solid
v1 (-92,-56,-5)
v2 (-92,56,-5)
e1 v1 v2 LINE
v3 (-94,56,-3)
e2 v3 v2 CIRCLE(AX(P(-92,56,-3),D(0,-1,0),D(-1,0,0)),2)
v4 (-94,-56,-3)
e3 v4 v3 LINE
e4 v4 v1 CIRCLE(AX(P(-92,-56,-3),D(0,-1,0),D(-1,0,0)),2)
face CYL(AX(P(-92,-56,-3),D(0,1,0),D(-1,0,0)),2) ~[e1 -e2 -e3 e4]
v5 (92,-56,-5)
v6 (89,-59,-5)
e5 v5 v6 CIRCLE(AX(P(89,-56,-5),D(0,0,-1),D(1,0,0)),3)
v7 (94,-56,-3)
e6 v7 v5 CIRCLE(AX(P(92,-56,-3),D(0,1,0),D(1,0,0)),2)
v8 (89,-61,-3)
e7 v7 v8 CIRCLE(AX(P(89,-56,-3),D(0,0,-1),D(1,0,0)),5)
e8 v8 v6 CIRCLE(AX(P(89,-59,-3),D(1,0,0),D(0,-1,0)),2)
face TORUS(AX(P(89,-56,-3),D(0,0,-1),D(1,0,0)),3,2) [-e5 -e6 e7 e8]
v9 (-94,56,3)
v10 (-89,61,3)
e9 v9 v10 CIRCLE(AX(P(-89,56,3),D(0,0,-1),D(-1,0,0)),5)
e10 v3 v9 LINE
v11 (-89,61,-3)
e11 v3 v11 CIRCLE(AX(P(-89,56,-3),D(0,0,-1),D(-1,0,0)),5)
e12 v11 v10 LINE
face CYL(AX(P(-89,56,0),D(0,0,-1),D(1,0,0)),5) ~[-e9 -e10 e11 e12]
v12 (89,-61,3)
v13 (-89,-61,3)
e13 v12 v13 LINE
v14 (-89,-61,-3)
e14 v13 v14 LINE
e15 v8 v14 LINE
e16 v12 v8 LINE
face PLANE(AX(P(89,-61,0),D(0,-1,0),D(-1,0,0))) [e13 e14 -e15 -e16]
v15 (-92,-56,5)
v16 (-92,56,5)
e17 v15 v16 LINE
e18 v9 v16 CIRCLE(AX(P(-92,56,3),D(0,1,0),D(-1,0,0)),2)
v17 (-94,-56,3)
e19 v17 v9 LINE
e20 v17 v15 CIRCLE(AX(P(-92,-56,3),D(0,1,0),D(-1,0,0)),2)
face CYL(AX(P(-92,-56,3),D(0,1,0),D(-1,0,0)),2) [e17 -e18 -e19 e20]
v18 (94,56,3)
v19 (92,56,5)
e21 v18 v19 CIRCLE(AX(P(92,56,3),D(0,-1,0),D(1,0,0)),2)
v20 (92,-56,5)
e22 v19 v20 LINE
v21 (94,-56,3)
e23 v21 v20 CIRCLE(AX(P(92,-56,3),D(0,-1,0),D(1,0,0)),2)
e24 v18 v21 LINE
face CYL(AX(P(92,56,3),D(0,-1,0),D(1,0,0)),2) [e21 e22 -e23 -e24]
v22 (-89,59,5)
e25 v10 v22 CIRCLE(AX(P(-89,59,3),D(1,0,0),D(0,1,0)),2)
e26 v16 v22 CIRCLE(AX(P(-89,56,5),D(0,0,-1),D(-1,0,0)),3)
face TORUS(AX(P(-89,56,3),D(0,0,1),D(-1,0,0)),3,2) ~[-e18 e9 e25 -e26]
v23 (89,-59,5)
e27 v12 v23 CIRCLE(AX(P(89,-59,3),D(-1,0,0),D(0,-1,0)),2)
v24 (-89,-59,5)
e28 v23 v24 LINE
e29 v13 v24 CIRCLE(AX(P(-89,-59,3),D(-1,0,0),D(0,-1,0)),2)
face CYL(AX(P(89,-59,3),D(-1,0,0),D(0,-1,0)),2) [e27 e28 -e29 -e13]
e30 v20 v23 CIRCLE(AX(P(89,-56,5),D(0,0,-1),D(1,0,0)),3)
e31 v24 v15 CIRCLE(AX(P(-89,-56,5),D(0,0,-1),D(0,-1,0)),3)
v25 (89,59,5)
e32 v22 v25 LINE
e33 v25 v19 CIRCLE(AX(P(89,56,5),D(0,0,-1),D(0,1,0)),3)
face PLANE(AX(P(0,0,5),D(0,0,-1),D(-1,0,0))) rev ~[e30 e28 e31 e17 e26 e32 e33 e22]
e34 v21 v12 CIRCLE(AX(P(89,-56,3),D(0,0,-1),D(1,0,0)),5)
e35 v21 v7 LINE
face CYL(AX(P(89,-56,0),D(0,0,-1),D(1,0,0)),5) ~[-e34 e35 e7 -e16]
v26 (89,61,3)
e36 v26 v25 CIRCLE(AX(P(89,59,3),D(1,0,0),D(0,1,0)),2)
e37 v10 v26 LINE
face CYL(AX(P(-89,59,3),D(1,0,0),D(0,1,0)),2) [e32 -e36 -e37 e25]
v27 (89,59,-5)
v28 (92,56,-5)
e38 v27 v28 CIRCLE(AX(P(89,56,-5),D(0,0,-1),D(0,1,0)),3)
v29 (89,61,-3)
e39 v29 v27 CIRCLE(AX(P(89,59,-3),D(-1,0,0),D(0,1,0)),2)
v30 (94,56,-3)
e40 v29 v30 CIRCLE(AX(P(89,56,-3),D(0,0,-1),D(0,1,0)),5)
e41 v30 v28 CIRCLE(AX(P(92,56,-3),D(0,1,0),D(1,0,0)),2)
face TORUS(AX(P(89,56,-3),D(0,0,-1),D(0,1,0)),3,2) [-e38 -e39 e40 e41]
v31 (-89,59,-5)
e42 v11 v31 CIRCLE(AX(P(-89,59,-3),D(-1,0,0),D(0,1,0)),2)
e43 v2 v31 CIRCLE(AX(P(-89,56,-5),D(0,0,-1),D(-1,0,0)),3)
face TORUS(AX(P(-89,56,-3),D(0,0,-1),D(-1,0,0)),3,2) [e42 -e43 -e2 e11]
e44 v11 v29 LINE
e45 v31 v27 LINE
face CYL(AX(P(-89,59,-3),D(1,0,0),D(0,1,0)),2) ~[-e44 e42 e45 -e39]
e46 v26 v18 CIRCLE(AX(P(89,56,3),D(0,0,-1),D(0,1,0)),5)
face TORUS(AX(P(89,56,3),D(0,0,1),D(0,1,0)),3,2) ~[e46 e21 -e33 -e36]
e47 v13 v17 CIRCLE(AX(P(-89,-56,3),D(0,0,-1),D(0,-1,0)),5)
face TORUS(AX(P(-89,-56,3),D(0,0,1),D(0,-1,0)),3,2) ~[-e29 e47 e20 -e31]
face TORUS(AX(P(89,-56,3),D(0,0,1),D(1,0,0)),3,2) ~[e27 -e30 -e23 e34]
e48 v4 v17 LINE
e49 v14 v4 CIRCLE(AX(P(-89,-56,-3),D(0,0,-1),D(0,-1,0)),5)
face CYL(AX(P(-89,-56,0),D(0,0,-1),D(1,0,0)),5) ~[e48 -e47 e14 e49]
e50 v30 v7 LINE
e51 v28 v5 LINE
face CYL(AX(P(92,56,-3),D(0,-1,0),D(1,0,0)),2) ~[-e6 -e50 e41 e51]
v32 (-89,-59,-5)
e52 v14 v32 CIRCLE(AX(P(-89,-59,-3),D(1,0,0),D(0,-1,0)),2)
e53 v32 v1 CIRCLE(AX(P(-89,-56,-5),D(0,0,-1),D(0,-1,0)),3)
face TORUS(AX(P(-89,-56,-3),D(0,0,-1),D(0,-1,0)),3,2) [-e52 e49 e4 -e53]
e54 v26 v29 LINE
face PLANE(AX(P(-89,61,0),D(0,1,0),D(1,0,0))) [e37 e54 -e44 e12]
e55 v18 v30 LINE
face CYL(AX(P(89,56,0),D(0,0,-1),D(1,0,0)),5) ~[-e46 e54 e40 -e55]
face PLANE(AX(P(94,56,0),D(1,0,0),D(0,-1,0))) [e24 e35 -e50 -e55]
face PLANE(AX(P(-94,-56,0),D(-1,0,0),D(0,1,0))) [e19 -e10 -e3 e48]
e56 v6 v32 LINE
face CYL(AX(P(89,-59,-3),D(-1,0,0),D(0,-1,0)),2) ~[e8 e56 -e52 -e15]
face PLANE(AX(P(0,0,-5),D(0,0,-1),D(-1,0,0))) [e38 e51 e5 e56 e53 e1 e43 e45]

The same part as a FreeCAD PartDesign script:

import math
import FreeCAD as App
import Part
import Sketcher


def edges_at(feature, points):
    """Names of the edges that pass closest to the given points."""
    edges = feature.Shape.Edges
    near = lambda p: min(range(len(edges)), key=lambda i: edges[i].distToShape(Part.Vertex(*p))[0])
    return sorted({f"Edge{near(p) + 1}" for p in points})

doc = App.newDocument("Part")
body = doc.addObject("PartDesign::Body", "Body")

sketch1 = body.newObject("Sketcher::SketchObject", "Sketch")
sketch1.AttachmentSupport = (doc.getObject("XY_Plane"), [""])
sketch1.MapMode = "FlatFace"
sketch1.addGeometry([
    Part.LineSegment(App.Vector(89, 61, 0), App.Vector(-89, 61, 0)),
    Part.ArcOfCircle(Part.Circle(App.Vector(-89, 56, 0), App.Vector(0, 0, 1), 5), math.radians(90), math.radians(180)),
    Part.LineSegment(App.Vector(-94, 56, 0), App.Vector(-94, -56, 0)),
    Part.ArcOfCircle(Part.Circle(App.Vector(-89, -56, 0), App.Vector(0, 0, 1), 5), math.radians(180), math.radians(270)),
    Part.LineSegment(App.Vector(-89, -61, 0), App.Vector(89, -61, 0)),
    Part.ArcOfCircle(Part.Circle(App.Vector(89, -56, 0), App.Vector(0, 0, 1), 5), math.radians(-90), math.radians(0)),
    Part.LineSegment(App.Vector(94, -56, 0), App.Vector(94, 56, 0)),
    Part.ArcOfCircle(Part.Circle(App.Vector(89, 56, 0), App.Vector(0, 0, 1), 5), math.radians(0), math.radians(90)),
], False)
sketch1.addConstraint([
    Sketcher.Constraint("Tangent", 0, 2, 1, 1),
    Sketcher.Constraint("Tangent", 1, 2, 2, 1),
    Sketcher.Constraint("Tangent", 2, 2, 3, 1),
    Sketcher.Constraint("Tangent", 3, 2, 4, 1),
    Sketcher.Constraint("Tangent", 4, 2, 5, 1),
    Sketcher.Constraint("Tangent", 5, 2, 6, 1),
    Sketcher.Constraint("Tangent", 6, 2, 7, 1),
    Sketcher.Constraint("Tangent", 7, 2, 0, 1),
    Sketcher.Constraint("Horizontal", 0),
    Sketcher.Constraint("Vertical", 2),
    Sketcher.Constraint("Horizontal", 4),
    Sketcher.Constraint("Vertical", 6),
    Sketcher.Constraint("Equal", 1, 3),
    Sketcher.Constraint("Equal", 3, 5),
    Sketcher.Constraint("Equal", 5, 7),
    Sketcher.Constraint("Symmetric", 1, 3, 5, 3, -1, 1),
    Sketcher.Constraint("Radius", 1, 5.0),
    Sketcher.Constraint("DistanceX", 0, 2, 0, 1, 178.0),
    Sketcher.Constraint("DistanceY", 2, 2, 2, 1, 112.0),
])
pad1 = body.newObject("PartDesign::Pad", "Pad")
pad1.Profile = sketch1
pad1.Length = 10
pad1.Midplane = True
doc.recompute()

fillet = body.newObject("PartDesign::Fillet", "Fillet")
fillet.Base = (pad1, edges_at(pad1, [
    (0, 61, 5),
    (92.535, 59.535, 5),
    (94, 0, 5),
    (92.535, -59.535, 5),
    (0, -61, 5),
    (-92.535, -59.535, 5),
    (-94, 0, 5),
    (-92.535, 59.535, 5),
    (94, 0, -5),
    (92.535, -59.535, -5),
    (0, -61, -5),
    (-92.535, -59.535, -5),
    (-94, 0, -5),
    (-92.535, 59.535, -5),
    (0, 61, -5),
    (92.535, 59.535, -5),
]))
fillet.Radius = 2

doc.recompute()
